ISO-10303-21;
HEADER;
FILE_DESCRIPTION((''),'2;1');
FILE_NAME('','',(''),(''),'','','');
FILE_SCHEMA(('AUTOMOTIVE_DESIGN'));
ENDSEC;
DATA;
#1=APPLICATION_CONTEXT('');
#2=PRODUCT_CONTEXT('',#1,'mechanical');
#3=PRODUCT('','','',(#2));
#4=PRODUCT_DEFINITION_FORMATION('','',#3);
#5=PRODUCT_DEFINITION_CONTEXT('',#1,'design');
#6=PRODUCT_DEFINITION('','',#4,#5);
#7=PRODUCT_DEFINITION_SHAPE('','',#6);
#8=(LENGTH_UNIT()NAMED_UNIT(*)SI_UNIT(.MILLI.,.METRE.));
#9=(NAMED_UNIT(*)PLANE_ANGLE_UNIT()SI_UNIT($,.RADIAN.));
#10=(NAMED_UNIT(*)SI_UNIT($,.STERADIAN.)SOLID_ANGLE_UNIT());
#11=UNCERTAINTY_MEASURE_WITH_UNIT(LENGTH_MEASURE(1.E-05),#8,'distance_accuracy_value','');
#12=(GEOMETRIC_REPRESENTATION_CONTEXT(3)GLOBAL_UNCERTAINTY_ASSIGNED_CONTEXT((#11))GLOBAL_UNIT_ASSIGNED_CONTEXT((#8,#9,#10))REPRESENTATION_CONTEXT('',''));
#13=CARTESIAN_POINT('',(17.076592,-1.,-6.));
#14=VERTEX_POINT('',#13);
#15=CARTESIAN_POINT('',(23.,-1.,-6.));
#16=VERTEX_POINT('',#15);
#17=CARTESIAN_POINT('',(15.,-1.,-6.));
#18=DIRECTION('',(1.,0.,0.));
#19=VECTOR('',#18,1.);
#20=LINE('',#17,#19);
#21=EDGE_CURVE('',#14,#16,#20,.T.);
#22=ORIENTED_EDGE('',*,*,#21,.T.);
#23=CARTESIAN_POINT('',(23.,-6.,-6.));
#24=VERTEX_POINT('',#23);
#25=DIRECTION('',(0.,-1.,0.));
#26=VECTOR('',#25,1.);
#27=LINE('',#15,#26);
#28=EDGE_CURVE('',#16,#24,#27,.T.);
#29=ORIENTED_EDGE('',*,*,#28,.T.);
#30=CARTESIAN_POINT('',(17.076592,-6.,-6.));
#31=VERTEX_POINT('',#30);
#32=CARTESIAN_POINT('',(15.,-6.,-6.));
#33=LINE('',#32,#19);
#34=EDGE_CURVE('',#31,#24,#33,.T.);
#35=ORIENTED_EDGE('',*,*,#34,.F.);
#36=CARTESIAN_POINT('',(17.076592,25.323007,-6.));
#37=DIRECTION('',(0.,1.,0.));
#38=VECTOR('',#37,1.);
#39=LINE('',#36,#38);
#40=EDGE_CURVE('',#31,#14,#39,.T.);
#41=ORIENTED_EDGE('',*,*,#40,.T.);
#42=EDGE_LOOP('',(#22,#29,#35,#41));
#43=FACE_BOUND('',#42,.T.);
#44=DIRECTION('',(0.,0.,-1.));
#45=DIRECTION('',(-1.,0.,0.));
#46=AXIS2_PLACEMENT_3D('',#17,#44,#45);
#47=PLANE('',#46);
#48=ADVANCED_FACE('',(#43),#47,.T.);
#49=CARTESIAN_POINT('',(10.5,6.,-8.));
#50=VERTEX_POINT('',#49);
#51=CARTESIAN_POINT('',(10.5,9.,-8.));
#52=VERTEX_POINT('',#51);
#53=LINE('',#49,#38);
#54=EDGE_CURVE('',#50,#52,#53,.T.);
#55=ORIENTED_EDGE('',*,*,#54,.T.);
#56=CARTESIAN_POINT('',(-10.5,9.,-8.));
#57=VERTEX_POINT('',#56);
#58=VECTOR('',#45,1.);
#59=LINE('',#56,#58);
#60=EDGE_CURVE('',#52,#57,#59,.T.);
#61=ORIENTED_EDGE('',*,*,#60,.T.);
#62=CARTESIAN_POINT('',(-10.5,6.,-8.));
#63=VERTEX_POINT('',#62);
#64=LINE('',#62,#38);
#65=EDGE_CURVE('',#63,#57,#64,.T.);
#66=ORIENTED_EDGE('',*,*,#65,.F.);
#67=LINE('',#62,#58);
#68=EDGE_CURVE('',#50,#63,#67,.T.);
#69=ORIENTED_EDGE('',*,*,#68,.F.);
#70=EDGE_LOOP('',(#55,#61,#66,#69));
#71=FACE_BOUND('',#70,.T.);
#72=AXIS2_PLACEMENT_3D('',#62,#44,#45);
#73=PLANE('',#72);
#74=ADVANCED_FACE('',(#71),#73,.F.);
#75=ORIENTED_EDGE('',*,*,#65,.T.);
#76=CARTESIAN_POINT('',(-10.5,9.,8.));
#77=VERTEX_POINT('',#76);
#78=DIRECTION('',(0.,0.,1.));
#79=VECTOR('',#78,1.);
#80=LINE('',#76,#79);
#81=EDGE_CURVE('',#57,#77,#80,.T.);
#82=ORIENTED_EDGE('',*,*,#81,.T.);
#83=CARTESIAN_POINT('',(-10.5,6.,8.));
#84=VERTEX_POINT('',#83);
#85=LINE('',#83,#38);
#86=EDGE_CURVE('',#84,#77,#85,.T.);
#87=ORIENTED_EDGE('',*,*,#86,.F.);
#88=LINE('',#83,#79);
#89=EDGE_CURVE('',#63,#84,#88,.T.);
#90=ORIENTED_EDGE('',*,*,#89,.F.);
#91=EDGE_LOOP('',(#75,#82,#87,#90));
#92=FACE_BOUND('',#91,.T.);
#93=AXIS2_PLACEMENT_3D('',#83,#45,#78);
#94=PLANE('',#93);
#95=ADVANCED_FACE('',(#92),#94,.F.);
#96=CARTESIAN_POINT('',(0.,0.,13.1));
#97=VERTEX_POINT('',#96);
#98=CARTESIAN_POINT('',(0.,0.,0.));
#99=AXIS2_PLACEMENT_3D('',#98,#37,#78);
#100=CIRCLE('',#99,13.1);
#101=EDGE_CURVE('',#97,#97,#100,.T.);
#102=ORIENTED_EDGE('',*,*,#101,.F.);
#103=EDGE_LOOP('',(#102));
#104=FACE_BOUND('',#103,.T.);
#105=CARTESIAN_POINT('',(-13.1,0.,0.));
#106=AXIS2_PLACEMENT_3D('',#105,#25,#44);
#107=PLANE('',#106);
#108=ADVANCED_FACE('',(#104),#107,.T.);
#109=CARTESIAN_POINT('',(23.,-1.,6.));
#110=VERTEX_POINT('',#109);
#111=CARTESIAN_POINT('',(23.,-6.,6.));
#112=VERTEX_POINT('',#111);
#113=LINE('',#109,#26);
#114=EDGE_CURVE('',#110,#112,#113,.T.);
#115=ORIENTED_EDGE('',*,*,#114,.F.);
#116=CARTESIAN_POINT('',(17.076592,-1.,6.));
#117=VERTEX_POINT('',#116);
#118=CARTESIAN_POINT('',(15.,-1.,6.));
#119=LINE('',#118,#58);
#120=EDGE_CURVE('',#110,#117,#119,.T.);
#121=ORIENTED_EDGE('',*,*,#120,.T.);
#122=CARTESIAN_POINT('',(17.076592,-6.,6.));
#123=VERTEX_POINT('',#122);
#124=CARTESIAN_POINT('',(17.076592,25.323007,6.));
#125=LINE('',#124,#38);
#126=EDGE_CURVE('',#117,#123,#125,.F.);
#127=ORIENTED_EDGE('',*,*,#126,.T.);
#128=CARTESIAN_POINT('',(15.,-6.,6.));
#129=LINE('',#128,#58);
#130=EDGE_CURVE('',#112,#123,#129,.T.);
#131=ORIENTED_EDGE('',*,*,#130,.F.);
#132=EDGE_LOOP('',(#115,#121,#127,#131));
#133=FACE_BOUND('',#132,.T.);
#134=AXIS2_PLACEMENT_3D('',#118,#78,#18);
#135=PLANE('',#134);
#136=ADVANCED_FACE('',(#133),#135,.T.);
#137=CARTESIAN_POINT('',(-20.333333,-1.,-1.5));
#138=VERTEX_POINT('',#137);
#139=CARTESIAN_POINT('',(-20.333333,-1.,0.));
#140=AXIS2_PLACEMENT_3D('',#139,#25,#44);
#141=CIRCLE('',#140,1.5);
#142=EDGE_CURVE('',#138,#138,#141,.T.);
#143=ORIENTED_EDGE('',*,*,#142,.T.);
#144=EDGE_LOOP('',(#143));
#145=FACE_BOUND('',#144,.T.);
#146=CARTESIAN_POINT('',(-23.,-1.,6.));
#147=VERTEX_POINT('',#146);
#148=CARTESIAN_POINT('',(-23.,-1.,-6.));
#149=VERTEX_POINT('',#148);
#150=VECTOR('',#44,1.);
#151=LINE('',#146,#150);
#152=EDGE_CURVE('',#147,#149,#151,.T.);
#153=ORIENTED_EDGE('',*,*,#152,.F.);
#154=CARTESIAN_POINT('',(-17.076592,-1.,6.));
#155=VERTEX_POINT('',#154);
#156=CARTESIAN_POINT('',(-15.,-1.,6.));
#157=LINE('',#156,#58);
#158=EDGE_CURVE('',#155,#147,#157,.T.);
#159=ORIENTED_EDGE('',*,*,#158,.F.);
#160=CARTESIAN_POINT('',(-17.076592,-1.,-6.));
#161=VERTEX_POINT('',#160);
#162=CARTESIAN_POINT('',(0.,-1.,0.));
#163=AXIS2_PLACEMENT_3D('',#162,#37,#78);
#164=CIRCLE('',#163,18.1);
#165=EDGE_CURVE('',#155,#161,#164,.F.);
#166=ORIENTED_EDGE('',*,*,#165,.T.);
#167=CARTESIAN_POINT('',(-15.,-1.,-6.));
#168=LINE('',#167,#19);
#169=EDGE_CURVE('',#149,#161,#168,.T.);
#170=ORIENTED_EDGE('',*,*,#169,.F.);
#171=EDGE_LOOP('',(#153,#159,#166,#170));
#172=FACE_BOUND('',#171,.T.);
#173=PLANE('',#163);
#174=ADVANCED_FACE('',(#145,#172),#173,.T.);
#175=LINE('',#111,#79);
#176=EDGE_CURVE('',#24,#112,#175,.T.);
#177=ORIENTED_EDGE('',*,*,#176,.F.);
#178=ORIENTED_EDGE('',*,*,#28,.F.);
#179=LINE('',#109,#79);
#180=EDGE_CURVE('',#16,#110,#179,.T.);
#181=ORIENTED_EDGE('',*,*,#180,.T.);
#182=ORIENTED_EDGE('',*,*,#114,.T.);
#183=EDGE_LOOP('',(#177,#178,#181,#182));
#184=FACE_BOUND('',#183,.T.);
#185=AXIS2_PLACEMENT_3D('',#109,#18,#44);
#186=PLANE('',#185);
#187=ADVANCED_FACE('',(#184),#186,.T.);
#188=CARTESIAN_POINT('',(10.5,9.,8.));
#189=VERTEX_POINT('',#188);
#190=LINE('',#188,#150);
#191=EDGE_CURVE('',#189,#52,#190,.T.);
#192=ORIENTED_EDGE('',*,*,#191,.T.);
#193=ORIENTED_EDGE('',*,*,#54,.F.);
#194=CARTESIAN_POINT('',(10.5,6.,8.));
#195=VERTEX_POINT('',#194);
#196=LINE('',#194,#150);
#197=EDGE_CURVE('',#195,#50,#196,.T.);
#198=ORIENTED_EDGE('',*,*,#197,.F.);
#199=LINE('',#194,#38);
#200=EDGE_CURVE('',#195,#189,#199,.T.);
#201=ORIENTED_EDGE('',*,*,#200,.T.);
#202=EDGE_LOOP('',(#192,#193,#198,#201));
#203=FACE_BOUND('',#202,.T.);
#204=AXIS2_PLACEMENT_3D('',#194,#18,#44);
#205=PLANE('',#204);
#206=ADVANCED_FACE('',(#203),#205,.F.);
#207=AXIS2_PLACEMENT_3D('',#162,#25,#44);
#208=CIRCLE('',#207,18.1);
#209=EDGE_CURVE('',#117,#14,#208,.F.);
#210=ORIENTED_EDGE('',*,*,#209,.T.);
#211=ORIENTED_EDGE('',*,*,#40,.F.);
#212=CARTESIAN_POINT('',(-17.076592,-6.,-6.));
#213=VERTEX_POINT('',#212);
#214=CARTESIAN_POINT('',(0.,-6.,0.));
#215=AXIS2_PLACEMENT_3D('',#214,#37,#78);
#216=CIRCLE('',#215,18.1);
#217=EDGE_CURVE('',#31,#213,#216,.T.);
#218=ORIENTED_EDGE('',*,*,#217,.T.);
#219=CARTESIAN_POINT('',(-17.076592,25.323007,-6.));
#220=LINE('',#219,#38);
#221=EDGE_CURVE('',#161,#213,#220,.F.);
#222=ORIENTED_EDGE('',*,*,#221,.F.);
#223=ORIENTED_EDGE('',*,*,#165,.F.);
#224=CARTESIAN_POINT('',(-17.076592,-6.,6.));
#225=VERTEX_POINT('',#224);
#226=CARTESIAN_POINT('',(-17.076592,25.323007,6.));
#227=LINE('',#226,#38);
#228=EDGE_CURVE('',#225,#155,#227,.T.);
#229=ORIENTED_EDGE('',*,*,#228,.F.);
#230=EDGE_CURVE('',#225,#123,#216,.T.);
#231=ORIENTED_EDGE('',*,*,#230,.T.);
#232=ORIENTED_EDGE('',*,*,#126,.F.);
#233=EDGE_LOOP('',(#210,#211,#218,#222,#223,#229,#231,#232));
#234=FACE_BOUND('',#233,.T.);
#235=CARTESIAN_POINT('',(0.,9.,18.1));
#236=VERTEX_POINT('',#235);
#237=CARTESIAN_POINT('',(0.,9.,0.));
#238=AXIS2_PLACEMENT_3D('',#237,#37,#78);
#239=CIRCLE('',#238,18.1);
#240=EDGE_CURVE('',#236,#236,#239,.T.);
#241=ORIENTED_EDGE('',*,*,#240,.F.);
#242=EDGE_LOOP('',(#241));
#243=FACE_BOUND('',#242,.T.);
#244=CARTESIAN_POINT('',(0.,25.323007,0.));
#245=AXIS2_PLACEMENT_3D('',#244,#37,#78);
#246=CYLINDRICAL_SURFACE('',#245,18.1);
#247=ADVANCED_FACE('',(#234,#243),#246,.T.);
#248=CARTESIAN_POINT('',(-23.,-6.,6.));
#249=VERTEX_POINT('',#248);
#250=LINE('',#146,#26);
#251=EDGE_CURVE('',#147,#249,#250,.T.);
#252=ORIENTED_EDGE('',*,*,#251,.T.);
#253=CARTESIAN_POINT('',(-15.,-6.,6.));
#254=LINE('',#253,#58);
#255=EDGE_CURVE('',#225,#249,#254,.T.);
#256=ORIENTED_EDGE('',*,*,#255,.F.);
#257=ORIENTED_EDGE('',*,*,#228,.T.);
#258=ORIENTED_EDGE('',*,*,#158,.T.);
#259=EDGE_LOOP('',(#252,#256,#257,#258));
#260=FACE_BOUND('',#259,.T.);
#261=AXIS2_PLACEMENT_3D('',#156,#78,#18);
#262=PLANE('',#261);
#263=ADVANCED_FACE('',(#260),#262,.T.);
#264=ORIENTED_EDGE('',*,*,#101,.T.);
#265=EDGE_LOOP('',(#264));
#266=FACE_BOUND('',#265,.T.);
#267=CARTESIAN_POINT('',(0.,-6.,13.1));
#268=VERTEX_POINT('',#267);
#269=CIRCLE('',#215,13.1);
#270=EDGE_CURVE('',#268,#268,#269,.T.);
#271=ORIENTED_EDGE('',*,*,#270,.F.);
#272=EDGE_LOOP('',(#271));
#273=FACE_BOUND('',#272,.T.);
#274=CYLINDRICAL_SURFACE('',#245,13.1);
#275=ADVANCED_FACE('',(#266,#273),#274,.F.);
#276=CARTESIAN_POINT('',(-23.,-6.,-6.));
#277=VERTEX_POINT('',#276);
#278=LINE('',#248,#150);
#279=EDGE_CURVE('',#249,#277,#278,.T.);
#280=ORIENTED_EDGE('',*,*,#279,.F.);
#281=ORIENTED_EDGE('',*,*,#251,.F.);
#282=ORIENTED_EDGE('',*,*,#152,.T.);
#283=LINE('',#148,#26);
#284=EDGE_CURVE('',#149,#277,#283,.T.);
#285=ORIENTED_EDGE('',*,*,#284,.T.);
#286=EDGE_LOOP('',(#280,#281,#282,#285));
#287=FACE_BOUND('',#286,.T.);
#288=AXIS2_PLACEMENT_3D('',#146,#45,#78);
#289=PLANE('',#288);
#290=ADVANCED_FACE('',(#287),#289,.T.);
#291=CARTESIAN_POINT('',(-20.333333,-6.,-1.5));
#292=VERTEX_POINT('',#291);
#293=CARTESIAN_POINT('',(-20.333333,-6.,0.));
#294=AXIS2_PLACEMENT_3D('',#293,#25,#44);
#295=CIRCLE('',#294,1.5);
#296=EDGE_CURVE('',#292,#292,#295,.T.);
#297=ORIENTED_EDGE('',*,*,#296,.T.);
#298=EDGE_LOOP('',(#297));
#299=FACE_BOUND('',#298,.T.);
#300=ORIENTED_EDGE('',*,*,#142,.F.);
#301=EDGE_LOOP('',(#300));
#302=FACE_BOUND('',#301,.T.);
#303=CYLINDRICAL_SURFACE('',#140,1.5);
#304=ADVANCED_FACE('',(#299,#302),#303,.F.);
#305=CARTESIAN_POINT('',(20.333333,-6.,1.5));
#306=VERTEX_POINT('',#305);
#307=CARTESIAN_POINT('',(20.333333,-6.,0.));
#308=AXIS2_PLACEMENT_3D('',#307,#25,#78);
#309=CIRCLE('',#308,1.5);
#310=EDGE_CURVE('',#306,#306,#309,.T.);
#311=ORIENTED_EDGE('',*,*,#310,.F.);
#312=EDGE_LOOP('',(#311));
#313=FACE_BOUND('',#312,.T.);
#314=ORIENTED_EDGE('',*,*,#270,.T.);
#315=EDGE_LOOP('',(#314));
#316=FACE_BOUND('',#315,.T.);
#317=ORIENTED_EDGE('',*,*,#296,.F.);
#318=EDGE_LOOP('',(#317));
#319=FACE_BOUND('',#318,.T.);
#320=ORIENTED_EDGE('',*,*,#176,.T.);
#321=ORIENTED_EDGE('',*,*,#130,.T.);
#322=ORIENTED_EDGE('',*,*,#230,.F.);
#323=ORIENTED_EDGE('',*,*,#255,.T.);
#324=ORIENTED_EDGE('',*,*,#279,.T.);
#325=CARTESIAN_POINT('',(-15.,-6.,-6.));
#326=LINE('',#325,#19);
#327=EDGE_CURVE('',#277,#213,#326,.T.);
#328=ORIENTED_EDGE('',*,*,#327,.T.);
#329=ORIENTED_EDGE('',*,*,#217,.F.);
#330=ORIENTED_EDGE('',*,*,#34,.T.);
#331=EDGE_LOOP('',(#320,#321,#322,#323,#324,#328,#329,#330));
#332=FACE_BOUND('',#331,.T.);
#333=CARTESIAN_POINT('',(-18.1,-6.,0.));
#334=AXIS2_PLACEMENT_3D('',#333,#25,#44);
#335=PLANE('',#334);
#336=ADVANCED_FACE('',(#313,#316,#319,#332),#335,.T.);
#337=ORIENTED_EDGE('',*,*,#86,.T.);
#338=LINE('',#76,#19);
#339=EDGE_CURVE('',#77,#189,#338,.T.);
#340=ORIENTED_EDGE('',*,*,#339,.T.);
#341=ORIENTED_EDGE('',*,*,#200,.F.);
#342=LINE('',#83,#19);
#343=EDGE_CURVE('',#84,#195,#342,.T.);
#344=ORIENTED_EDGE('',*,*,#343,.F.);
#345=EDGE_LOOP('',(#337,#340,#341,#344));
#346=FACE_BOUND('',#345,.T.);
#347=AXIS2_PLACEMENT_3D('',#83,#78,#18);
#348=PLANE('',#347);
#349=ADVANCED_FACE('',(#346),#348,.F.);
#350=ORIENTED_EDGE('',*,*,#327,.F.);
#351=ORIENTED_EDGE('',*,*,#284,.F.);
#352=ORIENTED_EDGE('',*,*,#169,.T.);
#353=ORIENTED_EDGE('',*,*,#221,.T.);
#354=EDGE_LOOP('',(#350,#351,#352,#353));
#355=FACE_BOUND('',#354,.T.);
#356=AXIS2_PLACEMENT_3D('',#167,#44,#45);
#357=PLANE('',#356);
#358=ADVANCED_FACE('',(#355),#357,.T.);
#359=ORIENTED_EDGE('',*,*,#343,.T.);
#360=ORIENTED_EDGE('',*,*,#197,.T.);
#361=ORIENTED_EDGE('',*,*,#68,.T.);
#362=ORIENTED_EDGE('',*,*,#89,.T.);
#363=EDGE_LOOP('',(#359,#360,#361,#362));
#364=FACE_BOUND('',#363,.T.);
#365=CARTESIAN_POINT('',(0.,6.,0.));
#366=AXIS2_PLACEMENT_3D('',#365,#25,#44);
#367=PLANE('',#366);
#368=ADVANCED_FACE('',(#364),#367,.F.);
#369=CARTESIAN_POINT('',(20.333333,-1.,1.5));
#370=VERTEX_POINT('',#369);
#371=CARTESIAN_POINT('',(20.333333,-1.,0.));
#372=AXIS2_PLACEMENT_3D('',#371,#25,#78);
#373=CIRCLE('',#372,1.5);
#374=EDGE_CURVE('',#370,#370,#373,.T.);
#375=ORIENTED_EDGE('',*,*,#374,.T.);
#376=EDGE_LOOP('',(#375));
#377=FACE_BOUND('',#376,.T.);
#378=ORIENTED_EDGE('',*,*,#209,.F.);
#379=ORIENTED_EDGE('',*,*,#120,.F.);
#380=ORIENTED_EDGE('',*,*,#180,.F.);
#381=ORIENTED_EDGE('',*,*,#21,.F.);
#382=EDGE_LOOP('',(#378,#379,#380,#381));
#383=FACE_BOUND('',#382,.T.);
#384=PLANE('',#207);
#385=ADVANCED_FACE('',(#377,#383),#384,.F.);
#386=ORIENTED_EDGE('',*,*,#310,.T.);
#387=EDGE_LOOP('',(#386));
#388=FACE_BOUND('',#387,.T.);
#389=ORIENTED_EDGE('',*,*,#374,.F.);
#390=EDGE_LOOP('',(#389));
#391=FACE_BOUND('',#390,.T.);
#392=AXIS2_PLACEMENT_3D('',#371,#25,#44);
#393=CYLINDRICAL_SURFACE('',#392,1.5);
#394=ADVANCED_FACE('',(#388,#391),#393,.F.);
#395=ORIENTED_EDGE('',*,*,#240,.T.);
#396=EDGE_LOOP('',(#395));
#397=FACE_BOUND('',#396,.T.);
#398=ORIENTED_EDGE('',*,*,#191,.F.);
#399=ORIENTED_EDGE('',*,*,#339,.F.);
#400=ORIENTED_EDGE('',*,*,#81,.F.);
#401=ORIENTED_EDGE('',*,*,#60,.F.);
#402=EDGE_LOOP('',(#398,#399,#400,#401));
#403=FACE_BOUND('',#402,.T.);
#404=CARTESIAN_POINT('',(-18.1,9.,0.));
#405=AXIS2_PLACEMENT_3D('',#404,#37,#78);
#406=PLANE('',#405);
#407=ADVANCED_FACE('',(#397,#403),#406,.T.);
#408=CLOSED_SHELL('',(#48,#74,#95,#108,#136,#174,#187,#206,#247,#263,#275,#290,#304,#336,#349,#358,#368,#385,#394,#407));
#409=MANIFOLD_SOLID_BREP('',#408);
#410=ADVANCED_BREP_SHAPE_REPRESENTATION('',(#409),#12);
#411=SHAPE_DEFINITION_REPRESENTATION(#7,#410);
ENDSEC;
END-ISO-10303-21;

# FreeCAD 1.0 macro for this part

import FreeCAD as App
import Part
import Sketcher

V = App.Vector
Q = App.Units.Quantity


def add_polygon(sketch, points):
    """Adds a closed chain of lines whose ends are joined by coincident constraints."""
    first, n = sketch.GeometryCount, len(points)
    for a, b in zip(points, points[1:] + points[:1]):
        sketch.addGeometry(Part.LineSegment(App.Vector(*a, 0), App.Vector(*b, 0)), False)
    for i in range(n):
        sketch.addConstraint(Sketcher.Constraint("Coincident", first + i, 2, first + (i + 1) % n, 1))

doc = App.newDocument("Part")
body = doc.addObject("PartDesign::Body", "Body")

# Sketch on XY plane
sketch1 = doc.addObject("Sketcher::SketchObject", "Sketch")
body.addObject(sketch1)
sketch1.AttachmentSupport = (doc.XY_Plane, [""])
sketch1.MapMode = "FlatFace"
add_polygon(sketch1, [(-18, 9), (-18, -6), (-13, -6), (-13, 0), (0, 0), (0, 9)])  # lines 0-5
sketch1.addConstraint([
    Sketcher.Constraint("Vertical", 0),
    Sketcher.Constraint("Horizontal", 1),
    Sketcher.Constraint("Vertical", 2),
    Sketcher.Constraint("Horizontal", 3),
    Sketcher.Constraint("Vertical", 4),
    Sketcher.Constraint("Horizontal", 5),
    Sketcher.Constraint("Coincident", 3, 2, -1, 1),
    Sketcher.Constraint("DistanceX", 1, 1, 1, 2, Q("5 mm")),
    Sketcher.Constraint("DistanceY", 0, 2, 0, 1, Q("15 mm")),
    Sketcher.Constraint("DistanceY", 2, 1, 2, 2, Q("6 mm")),
    Sketcher.Constraint("DistanceX", 3, 1, 3, 2, Q("13.1 mm")),
])
revolution = doc.addObject("PartDesign::Revolution", "Revolution")
body.addObject(revolution)
revolution.Profile = sketch1
revolution.ReferenceAxis = (sketch1, ["V_Axis"])
revolution.Angle = 360

# Sketch on XZ plane
sketch2 = doc.addObject("Sketcher::SketchObject", "Sketch001")
body.addObject(sketch2)
sketch2.AttachmentSupport = (doc.XZ_Plane, [""])
sketch2.MapMode = "FlatFace"
sketch2.AttachmentOffset = App.Placement(V(0, 0, -9), App.Rotation())
add_polygon(sketch2, [(-10, -8), (-10, 8), (10, 8), (10, -8)])  # lines 0-3
sketch2.addConstraint([
    Sketcher.Constraint("Vertical", 0),
    Sketcher.Constraint("Horizontal", 1),
    Sketcher.Constraint("Vertical", 2),
    Sketcher.Constraint("Horizontal", 3),
    Sketcher.Constraint("Symmetric", 0, 2, 2, 2, -1, 1),
    Sketcher.Constraint("DistanceX", 1, 1, 1, 2, Q("21 mm")),
    Sketcher.Constraint("DistanceY", 0, 1, 0, 2, Q("16 mm")),
])
pocket1 = doc.addObject("PartDesign::Pocket", "Pocket")
body.addObject(pocket1)
pocket1.Profile = sketch2
pocket1.Length = 3
pocket1.Reversed = True

# Sketch on XZ plane
sketch3 = doc.addObject("Sketcher::SketchObject", "Sketch002")
body.addObject(sketch3)
sketch3.AttachmentSupport = (doc.XZ_Plane, [""])
sketch3.MapMode = "FlatFace"
sketch3.AttachmentOffset = App.Placement(V(0, 0, 6), App.Rotation())
add_polygon(sketch3, [(-23, 6), (-23, -6), (-15, -6), (-15, 6)])  # lines 0-3
sketch3.addGeometry(Part.Circle(V(-20.3, 0, 0), V(0, 0, 1), 1.5), False)  # 4
add_polygon(sketch3, [(15, 6), (15, -6), (23, -6), (23, 6)])  # lines 5-8
sketch3.addGeometry(Part.Circle(V(20.3, 0, 0), V(0, 0, 1), 1.5), False)  # 9
sketch3.addConstraint([
    Sketcher.Constraint("Vertical", 0),
    Sketcher.Constraint("Horizontal", 1),
    Sketcher.Constraint("Vertical", 2),
    Sketcher.Constraint("Horizontal", 3),
    Sketcher.Constraint("Vertical", 5),
    Sketcher.Constraint("Horizontal", 6),
    Sketcher.Constraint("Vertical", 7),
    Sketcher.Constraint("Horizontal", 8),
    Sketcher.Constraint("Equal", 4, 9),
    Sketcher.Constraint("Symmetric", 4, 3, 9, 3, -1, 1),
    Sketcher.Constraint("Symmetric", 2, 2, 5, 2, -1, 1),
    Sketcher.Constraint("Symmetric", 0, 2, 7, 2, -1, 1),
    Sketcher.Constraint("PointOnObject", 4, 3, -1),
    Sketcher.Constraint("Horizontal", 1, 2, 5, 2),
    Sketcher.Constraint("Diameter", 4, Q("3 mm")),
    Sketcher.Constraint("DistanceX", 1, 1, 1, 2, Q("8 mm")),
    Sketcher.Constraint("DistanceY", 0, 2, 0, 1, Q("12 mm")),
    Sketcher.Constraint("DistanceX", 0, 2, -1, 1, Q("23 mm")),
    Sketcher.Constraint("DistanceX", 4, 3, -1, 1, Q("20.333333 mm")),
])
pad1 = doc.addObject("PartDesign::Pad", "Pad")
body.addObject(pad1)
pad1.Profile = sketch3
pad1.Length = 5
pad1.Reversed = True

doc.recompute()
